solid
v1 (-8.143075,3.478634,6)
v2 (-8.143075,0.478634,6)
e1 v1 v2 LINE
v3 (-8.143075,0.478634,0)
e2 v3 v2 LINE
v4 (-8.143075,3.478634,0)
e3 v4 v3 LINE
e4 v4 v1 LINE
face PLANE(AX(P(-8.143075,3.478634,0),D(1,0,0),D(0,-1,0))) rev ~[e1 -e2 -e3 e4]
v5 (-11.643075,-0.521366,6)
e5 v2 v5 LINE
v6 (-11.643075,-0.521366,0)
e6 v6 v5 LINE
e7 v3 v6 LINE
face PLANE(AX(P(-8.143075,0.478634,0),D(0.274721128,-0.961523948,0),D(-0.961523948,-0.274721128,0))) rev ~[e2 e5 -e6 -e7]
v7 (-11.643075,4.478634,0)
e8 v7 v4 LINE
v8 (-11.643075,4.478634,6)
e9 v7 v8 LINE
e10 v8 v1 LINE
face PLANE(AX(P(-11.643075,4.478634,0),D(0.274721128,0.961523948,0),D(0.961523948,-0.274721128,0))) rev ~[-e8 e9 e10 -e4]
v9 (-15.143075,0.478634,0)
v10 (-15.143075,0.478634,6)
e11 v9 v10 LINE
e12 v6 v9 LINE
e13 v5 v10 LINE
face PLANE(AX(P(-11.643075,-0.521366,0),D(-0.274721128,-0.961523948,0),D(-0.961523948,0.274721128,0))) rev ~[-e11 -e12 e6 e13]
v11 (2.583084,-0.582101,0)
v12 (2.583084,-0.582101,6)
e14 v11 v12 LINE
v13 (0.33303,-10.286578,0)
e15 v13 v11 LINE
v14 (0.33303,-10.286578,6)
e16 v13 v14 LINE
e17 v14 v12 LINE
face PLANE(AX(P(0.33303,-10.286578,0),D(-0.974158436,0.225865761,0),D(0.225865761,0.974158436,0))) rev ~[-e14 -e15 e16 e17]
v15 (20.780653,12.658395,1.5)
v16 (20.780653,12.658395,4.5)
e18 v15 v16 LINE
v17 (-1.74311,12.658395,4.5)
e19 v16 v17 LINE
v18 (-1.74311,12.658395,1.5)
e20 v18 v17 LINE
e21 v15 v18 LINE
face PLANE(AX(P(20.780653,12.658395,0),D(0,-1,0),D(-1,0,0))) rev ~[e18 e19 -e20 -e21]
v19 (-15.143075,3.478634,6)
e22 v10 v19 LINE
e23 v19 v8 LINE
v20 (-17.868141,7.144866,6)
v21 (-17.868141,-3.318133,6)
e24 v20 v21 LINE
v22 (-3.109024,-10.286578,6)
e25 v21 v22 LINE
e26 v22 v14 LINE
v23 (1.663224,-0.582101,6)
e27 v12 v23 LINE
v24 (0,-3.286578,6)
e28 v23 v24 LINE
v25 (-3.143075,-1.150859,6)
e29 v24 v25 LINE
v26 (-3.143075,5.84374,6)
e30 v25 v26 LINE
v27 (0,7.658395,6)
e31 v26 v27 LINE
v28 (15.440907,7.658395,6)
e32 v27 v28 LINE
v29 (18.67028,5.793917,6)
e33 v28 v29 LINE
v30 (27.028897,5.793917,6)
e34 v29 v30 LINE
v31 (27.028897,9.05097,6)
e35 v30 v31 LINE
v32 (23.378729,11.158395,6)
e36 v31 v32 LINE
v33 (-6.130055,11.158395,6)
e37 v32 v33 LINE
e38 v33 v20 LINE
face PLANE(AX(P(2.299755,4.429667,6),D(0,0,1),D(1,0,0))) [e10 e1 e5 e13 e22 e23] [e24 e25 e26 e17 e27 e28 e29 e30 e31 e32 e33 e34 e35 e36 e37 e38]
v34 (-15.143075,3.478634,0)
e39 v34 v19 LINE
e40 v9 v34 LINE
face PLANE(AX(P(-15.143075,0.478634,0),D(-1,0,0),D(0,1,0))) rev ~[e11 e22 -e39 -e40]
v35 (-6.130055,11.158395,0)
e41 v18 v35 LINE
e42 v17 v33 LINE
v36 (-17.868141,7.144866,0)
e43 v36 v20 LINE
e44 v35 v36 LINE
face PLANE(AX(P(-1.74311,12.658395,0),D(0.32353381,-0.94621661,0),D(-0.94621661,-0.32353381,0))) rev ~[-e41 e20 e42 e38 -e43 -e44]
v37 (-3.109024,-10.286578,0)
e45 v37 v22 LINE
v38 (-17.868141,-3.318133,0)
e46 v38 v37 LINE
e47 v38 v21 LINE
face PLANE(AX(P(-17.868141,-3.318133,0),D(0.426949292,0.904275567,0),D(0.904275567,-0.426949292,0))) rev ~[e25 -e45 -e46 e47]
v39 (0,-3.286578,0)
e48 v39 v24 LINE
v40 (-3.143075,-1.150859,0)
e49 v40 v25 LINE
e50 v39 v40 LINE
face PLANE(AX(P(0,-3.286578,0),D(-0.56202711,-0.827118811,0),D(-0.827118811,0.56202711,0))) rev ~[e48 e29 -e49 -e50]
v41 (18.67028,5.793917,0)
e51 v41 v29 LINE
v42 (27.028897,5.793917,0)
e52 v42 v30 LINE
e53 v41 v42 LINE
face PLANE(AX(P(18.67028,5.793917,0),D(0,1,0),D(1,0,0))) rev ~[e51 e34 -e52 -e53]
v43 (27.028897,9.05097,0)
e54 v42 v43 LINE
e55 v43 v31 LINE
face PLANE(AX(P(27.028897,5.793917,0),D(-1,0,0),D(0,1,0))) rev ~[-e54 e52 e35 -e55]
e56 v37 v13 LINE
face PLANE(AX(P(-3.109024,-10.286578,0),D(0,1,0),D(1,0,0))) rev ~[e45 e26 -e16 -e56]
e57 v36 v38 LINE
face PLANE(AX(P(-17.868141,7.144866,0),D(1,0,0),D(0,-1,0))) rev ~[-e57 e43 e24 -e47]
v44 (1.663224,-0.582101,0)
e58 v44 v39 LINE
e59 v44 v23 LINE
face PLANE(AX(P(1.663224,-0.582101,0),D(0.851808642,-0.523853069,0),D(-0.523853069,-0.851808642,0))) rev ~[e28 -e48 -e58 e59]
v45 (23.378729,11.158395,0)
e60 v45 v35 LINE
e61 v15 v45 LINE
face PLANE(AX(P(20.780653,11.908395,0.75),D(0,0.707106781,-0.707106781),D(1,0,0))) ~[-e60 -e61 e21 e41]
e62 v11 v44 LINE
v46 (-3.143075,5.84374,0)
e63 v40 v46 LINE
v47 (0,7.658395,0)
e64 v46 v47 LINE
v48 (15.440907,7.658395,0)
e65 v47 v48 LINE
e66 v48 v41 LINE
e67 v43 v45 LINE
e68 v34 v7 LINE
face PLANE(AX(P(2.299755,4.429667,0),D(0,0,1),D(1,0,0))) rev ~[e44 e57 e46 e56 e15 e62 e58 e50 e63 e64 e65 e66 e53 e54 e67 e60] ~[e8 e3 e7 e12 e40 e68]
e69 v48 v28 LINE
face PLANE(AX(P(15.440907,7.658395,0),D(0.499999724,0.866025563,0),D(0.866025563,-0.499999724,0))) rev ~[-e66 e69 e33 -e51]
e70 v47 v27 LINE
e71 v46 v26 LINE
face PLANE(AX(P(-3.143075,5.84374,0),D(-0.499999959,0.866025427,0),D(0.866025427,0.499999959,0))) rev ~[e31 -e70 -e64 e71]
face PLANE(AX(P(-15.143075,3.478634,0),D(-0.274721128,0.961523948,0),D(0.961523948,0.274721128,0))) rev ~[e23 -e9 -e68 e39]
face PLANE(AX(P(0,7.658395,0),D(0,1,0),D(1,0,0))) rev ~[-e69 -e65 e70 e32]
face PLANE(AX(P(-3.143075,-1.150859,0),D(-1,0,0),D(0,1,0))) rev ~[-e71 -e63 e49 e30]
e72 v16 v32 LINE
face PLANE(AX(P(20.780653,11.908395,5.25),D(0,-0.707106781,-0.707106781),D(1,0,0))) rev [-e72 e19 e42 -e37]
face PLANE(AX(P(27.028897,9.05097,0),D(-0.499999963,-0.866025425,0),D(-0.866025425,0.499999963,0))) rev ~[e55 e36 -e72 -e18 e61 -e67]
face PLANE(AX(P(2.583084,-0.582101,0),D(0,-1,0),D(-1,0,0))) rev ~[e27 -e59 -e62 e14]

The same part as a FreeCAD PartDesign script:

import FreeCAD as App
import Part
import Sketcher
Q = App.Units.Quantity


def edges_at(feature, points):
    """Names of the edges that pass closest to the given points."""
    edges = feature.Shape.Edges
    near = lambda p: min(range(len(edges)), key=lambda i: edges[i].distToShape(Part.Vertex(*p))[0])
    return sorted({f"Edge{near(p) + 1}" for p in points})

doc = App.newDocument("Part")
body = doc.addObject("PartDesign::Body", "Body")

# Sketch on XY plane
sketch1 = body.newObject("Sketcher::SketchObject", "Sketch")
sketch1.AttachmentSupport = (doc.getObject("XY_Plane"), [""])
sketch1.MapMode = "FlatFace"
sketch1.addGeometry([
    Part.LineSegment(App.Vector(20.8, 12.7, 0), App.Vector(-1.7, 12.7, 0)),  # 0
    Part.LineSegment(App.Vector(-1.7, 12.7, 0), App.Vector(-17.9, 7.1, 0)),  # 1
    Part.LineSegment(App.Vector(-17.9, 7.1, 0), App.Vector(-17.9, -3.3, 0)),  # 2
    Part.LineSegment(App.Vector(-17.9, -3.3, 0), App.Vector(-3.1, -10.3, 0)),  # 3
    Part.LineSegment(App.Vector(-3.1, -10.3, 0), App.Vector(0.3, -10.3, 0)),  # 4
    Part.LineSegment(App.Vector(0.3, -10.3, 0), App.Vector(2.6, -0.6, 0)),  # 5
    Part.LineSegment(App.Vector(2.6, -0.6, 0), App.Vector(1.7, -0.6, 0)),  # 6
    Part.LineSegment(App.Vector(1.7, -0.6, 0), App.Vector(0, -3.3, 0)),  # 7
    Part.LineSegment(App.Vector(0, -3.3, 0), App.Vector(-3.1, -1.2, 0)),  # 8
    Part.LineSegment(App.Vector(-3.1, -1.2, 0), App.Vector(-3.1, 5.8, 0)),  # 9
    Part.LineSegment(App.Vector(-3.1, 5.8, 0), App.Vector(0, 7.7, 0)),  # 10
    Part.LineSegment(App.Vector(0, 7.7, 0), App.Vector(15.4, 7.7, 0)),  # 11
    Part.LineSegment(App.Vector(15.4, 7.7, 0), App.Vector(18.7, 5.8, 0)),  # 12
    Part.LineSegment(App.Vector(18.7, 5.8, 0), App.Vector(27, 5.8, 0)),  # 13
    Part.LineSegment(App.Vector(27, 5.8, 0), App.Vector(27, 9.1, 0)),  # 14
    Part.LineSegment(App.Vector(27, 9.1, 0), App.Vector(20.8, 12.7, 0)),  # 15
    Part.LineSegment(App.Vector(-11.6, -0.5, 0), App.Vector(-15.1, 0.5, 0)),  # 16
    Part.LineSegment(App.Vector(-15.1, 0.5, 0), App.Vector(-15.1, 3.5, 0)),  # 17
    Part.LineSegment(App.Vector(-15.1, 3.5, 0), App.Vector(-11.6, 4.5, 0)),  # 18
    Part.LineSegment(App.Vector(-11.6, 4.5, 0), App.Vector(-8.1, 3.5, 0)),  # 19
    Part.LineSegment(App.Vector(-8.1, 3.5, 0), App.Vector(-8.1, 0.5, 0)),  # 20
    Part.LineSegment(App.Vector(-8.1, 0.5, 0), App.Vector(-11.6, -0.5, 0)),  # 21
], False)
sketch1.addConstraint([
    Sketcher.Constraint("Coincident", 0, 2, 1, 1),
    Sketcher.Constraint("Coincident", 1, 2, 2, 1),
    Sketcher.Constraint("Coincident", 2, 2, 3, 1),
    Sketcher.Constraint("Coincident", 3, 2, 4, 1),
    Sketcher.Constraint("Coincident", 4, 2, 5, 1),
    Sketcher.Constraint("Coincident", 5, 2, 6, 1),
    Sketcher.Constraint("Coincident", 6, 2, 7, 1),
    Sketcher.Constraint("Coincident", 7, 2, 8, 1),
    Sketcher.Constraint("Coincident", 8, 2, 9, 1),
    Sketcher.Constraint("Coincident", 9, 2, 10, 1),
    Sketcher.Constraint("Coincident", 10, 2, 11, 1),
    Sketcher.Constraint("Coincident", 11, 2, 12, 1),
    Sketcher.Constraint("Coincident", 12, 2, 13, 1),
    Sketcher.Constraint("Coincident", 13, 2, 14, 1),
    Sketcher.Constraint("Coincident", 14, 2, 15, 1),
    Sketcher.Constraint("Coincident", 15, 2, 0, 1),
    Sketcher.Constraint("Coincident", 16, 2, 17, 1),
    Sketcher.Constraint("Coincident", 17, 2, 18, 1),
    Sketcher.Constraint("Coincident", 18, 2, 19, 1),
    Sketcher.Constraint("Coincident", 19, 2, 20, 1),
    Sketcher.Constraint("Coincident", 20, 2, 21, 1),
    Sketcher.Constraint("Coincident", 21, 2, 16, 1),
    Sketcher.Constraint("Horizontal", 0),
    Sketcher.Constraint("Vertical", 2),
    Sketcher.Constraint("Horizontal", 4),
    Sketcher.Constraint("Horizontal", 6),
    Sketcher.Constraint("Vertical", 9),
    Sketcher.Constraint("Horizontal", 11),
    Sketcher.Constraint("Horizontal", 13),
    Sketcher.Constraint("Vertical", 14),
    Sketcher.Constraint("Vertical", 17),
    Sketcher.Constraint("Vertical", 20),
    Sketcher.Constraint("PointOnObject", 7, 2, -2),
    Sketcher.Constraint("PointOnObject", 10, 2, -2),
    Sketcher.Constraint("Parallel", 12, 15),
    Sketcher.Constraint("Parallel", 16, 19),
    Sketcher.Constraint("Parallel", 18, 21),
    Sketcher.Constraint("Horizontal", 17, 2, 19, 2),
    Sketcher.Constraint("Horizontal", 16, 2, 20, 2),
    Sketcher.Constraint("Vertical", 18, 2, 21, 2),
    Sketcher.Constraint("DistanceY", 17, 1, 17, 2, 3.0),
    Sketcher.Constraint("Angle", 10, Q("29.999997 deg")),
    Sketcher.Constraint("Angle", 12, Q("-29.999982 deg")),
    Sketcher.Constraint("DistanceY", 4, 2, 7, 2, 7.0),
    Sketcher.Constraint("DistanceY", 10, 2, 0, 2, 5.0),
    Sketcher.Constraint("DistanceX", 16, 2, 8, 2, 12.0),
    Sketcher.Constraint("DistanceY", 17, 2, 18, 2, 1.0),
    Sketcher.Constraint("DistanceX", 19, 2, 9, 2, 5.0),
    Sketcher.Constraint("DistanceY", 2, 2, 2, 1, 10.462999),
    Sketcher.Constraint("DistanceY", 9, 1, 9, 2, 6.994599),
    Sketcher.Constraint("DistanceX", 6, 2, 6, 1, 0.91986),
    Sketcher.Constraint("DistanceY", 5, 2, -1, 1, 0.582101),
    Sketcher.Constraint("DistanceX", 8, 2, 6, 2, 4.806299),
    Sketcher.Constraint("Distance", 3, 16.321482),
    Sketcher.Constraint("Distance", 5, 9.961908),
    Sketcher.Constraint("Distance", 7, 3.174982),
    Sketcher.Constraint("Distance", 8, 3.800028),
    Sketcher.Constraint("Distance", 10, 3.62931),
    Sketcher.Constraint("Distance", 12, 3.728958),
    Sketcher.Constraint("Distance", 15, 7.214851),
    Sketcher.Constraint("DistanceX", 0, 2, 0, 1, 22.523763),
    Sketcher.Constraint("DistanceX", 4, 1, 4, 2, 3.442054),
    Sketcher.Constraint("DistanceX", 11, 1, 11, 2, 15.440907),
    Sketcher.Constraint("DistanceX", 13, 1, 13, 2, 8.358617),
    Sketcher.Constraint("DistanceX", 1, 2, -1, 1, 17.868141),
    Sketcher.Constraint("DistanceY", 7, 2, 16, 2, 3.765212),
])
pad1 = body.newObject("PartDesign::Pad", "Pad")
pad1.Profile = sketch1
pad1.Length = 6
doc.recompute()

chamfer = body.newObject("PartDesign::Chamfer", "Chamfer")
chamfer.Base = (pad1, edges_at(pad1, [(9.519, 12.658, 6), (9.519, 12.658, 0)]))
chamfer.Size = 1.5

doc.recompute()
